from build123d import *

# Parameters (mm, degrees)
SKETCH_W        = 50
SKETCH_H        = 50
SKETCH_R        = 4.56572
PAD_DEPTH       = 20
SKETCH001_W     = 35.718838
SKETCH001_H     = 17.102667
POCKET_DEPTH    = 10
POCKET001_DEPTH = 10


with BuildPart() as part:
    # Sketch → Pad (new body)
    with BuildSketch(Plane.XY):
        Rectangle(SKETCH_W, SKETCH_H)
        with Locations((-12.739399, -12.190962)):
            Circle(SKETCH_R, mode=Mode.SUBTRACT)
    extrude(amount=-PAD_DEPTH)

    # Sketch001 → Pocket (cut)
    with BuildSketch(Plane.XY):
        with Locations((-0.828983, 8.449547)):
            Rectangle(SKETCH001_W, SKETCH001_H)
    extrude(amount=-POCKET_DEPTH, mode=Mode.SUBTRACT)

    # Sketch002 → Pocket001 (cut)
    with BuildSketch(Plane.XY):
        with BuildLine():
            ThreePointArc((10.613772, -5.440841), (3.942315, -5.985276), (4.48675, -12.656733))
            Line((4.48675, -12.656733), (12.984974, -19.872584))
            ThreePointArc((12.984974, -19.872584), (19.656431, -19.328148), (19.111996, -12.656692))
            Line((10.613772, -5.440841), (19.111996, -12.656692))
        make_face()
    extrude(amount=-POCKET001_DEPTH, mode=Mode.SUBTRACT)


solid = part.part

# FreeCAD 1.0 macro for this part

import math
import FreeCAD as App
import Part
import Sketcher
Q = App.Units.Quantity


def add_polygon(sketch, points):
    """Adds a closed chain of lines whose ends are joined by coincident constraints."""
    first, n = sketch.GeometryCount, len(points)
    for a, b in zip(points, points[1:] + points[:1]):
        sketch.addGeometry(Part.LineSegment(App.Vector(*a, 0), App.Vector(*b, 0)), False)
    for i in range(n):
        sketch.addConstraint(Sketcher.Constraint("Coincident", first + i, 2, first + (i + 1) % n, 1))

doc = App.newDocument("Part")
body = doc.addObject("PartDesign::Body", "Body")

sketch1 = body.newObject("Sketcher::SketchObject", "Sketch")
sketch1.AttachmentSupport = (doc.getObject("XY_Plane"), [""])
sketch1.MapMode = "FlatFace"
add_polygon(sketch1, [(-25, 25), (-25, -25), (25, -25), (25, 25)])
sketch1.addGeometry(Part.Circle(App.Vector(-12.7, -12.2, 0), App.Vector(0, 0, 1), 4.6), False)
sketch1.addConstraint([
    Sketcher.Constraint("Vertical", 0),
    Sketcher.Constraint("Horizontal", 1),
    Sketcher.Constraint("Vertical", 2),
    Sketcher.Constraint("Horizontal", 3),
    Sketcher.Constraint("Symmetric", 0, 2, 2, 2, -1, 1),
    Sketcher.Constraint("Equal", 3, 0),
    Sketcher.Constraint("DistanceX", 1, 1, 1, 2, Q("50 mm")),
    Sketcher.Constraint("Diameter", 4, Q("9.13144 mm")),
    Sketcher.Constraint("DistanceX", 4, 3, -1, 1, Q("12.739399 mm")),
    Sketcher.Constraint("DistanceY", 4, 3, -1, 1, Q("12.190962 mm")),
])
pad1 = body.newObject("PartDesign::Pad", "Pad")
pad1.Profile = sketch1
pad1.Length = 20
pad1.Reversed = True

sketch2 = body.newObject("Sketcher::SketchObject", "Sketch001")
sketch2.AttachmentSupport = (doc.getObject("XY_Plane"), [""])
sketch2.MapMode = "FlatFace"
add_polygon(sketch2, [(-19, 17), (-19, 0), (17, 0), (17, 17)])
sketch2.addConstraint([
    Sketcher.Constraint("Vertical", 0),
    Sketcher.Constraint("Horizontal", 1),
    Sketcher.Constraint("Vertical", 2),
    Sketcher.Constraint("Horizontal", 3),
    Sketcher.Constraint("DistanceX", 1, 1, 1, 2, Q("35.718838 mm")),
    Sketcher.Constraint("DistanceX", 0, 2, -1, 1, Q("18.688402 mm")),
    Sketcher.Constraint("DistanceY", 0, 2, 0, 1, Q("17.102667 mm")),
    Sketcher.Constraint("DistanceY", -1, 1, 2, 2, Q("17.000881 mm")),
])
pocket1 = body.newObject("PartDesign::Pocket", "Pocket")
pocket1.Profile = sketch2
pocket1.Length = 10

sketch3 = body.newObject("Sketcher::SketchObject", "Sketch002")
sketch3.AttachmentSupport = (doc.getObject("XY_Plane"), [""])
sketch3.MapMode = "FlatFace"
sketch3.addGeometry([
    Part.ArcOfCircle(Part.Circle(App.Vector(7.6, -9, 0), App.Vector(0, 0, 1), 4.7), math.radians(50), math.radians(230)),
    Part.LineSegment(App.Vector(4.5, -12.7, 0), App.Vector(13, -19.9, 0)),
    Part.ArcOfCircle(Part.Circle(App.Vector(16, -16.3, 0), App.Vector(0, 0, 1), 4.7), math.radians(-130), math.radians(50)),
    Part.LineSegment(App.Vector(19.1, -12.7, 0), App.Vector(10.6, -5.4, 0)),
], False)
sketch3.addConstraint([
    Sketcher.Constraint("Tangent", 0, 2, 1, 1),
    Sketcher.Constraint("Tangent", 1, 2, 2, 1),
    Sketcher.Constraint("Tangent", 2, 2, 3, 1),
    Sketcher.Constraint("Tangent", 3, 2, 0, 1),
    Sketcher.Constraint("Equal", 0, 2),
    Sketcher.Constraint("Radius", 0, Q("4.733115 mm")),
    Sketcher.Constraint("DistanceX", 3, 2, 1, 2, Q("2.371202 mm")),
    Sketcher.Constraint("DistanceX", -1, 1, 0, 3, Q("7.550261 mm")),
    Sketcher.Constraint("DistanceX", -1, 1, 0, 2, Q("4.48675 mm")),
    Sketcher.Constraint("DistanceY", 2, 2, -1, 1, Q("12.656692 mm")),
])
pocket2 = body.newObject("PartDesign::Pocket", "Pocket001")
pocket2.Profile = sketch3
pocket2.Length = 10

doc.recompute()
